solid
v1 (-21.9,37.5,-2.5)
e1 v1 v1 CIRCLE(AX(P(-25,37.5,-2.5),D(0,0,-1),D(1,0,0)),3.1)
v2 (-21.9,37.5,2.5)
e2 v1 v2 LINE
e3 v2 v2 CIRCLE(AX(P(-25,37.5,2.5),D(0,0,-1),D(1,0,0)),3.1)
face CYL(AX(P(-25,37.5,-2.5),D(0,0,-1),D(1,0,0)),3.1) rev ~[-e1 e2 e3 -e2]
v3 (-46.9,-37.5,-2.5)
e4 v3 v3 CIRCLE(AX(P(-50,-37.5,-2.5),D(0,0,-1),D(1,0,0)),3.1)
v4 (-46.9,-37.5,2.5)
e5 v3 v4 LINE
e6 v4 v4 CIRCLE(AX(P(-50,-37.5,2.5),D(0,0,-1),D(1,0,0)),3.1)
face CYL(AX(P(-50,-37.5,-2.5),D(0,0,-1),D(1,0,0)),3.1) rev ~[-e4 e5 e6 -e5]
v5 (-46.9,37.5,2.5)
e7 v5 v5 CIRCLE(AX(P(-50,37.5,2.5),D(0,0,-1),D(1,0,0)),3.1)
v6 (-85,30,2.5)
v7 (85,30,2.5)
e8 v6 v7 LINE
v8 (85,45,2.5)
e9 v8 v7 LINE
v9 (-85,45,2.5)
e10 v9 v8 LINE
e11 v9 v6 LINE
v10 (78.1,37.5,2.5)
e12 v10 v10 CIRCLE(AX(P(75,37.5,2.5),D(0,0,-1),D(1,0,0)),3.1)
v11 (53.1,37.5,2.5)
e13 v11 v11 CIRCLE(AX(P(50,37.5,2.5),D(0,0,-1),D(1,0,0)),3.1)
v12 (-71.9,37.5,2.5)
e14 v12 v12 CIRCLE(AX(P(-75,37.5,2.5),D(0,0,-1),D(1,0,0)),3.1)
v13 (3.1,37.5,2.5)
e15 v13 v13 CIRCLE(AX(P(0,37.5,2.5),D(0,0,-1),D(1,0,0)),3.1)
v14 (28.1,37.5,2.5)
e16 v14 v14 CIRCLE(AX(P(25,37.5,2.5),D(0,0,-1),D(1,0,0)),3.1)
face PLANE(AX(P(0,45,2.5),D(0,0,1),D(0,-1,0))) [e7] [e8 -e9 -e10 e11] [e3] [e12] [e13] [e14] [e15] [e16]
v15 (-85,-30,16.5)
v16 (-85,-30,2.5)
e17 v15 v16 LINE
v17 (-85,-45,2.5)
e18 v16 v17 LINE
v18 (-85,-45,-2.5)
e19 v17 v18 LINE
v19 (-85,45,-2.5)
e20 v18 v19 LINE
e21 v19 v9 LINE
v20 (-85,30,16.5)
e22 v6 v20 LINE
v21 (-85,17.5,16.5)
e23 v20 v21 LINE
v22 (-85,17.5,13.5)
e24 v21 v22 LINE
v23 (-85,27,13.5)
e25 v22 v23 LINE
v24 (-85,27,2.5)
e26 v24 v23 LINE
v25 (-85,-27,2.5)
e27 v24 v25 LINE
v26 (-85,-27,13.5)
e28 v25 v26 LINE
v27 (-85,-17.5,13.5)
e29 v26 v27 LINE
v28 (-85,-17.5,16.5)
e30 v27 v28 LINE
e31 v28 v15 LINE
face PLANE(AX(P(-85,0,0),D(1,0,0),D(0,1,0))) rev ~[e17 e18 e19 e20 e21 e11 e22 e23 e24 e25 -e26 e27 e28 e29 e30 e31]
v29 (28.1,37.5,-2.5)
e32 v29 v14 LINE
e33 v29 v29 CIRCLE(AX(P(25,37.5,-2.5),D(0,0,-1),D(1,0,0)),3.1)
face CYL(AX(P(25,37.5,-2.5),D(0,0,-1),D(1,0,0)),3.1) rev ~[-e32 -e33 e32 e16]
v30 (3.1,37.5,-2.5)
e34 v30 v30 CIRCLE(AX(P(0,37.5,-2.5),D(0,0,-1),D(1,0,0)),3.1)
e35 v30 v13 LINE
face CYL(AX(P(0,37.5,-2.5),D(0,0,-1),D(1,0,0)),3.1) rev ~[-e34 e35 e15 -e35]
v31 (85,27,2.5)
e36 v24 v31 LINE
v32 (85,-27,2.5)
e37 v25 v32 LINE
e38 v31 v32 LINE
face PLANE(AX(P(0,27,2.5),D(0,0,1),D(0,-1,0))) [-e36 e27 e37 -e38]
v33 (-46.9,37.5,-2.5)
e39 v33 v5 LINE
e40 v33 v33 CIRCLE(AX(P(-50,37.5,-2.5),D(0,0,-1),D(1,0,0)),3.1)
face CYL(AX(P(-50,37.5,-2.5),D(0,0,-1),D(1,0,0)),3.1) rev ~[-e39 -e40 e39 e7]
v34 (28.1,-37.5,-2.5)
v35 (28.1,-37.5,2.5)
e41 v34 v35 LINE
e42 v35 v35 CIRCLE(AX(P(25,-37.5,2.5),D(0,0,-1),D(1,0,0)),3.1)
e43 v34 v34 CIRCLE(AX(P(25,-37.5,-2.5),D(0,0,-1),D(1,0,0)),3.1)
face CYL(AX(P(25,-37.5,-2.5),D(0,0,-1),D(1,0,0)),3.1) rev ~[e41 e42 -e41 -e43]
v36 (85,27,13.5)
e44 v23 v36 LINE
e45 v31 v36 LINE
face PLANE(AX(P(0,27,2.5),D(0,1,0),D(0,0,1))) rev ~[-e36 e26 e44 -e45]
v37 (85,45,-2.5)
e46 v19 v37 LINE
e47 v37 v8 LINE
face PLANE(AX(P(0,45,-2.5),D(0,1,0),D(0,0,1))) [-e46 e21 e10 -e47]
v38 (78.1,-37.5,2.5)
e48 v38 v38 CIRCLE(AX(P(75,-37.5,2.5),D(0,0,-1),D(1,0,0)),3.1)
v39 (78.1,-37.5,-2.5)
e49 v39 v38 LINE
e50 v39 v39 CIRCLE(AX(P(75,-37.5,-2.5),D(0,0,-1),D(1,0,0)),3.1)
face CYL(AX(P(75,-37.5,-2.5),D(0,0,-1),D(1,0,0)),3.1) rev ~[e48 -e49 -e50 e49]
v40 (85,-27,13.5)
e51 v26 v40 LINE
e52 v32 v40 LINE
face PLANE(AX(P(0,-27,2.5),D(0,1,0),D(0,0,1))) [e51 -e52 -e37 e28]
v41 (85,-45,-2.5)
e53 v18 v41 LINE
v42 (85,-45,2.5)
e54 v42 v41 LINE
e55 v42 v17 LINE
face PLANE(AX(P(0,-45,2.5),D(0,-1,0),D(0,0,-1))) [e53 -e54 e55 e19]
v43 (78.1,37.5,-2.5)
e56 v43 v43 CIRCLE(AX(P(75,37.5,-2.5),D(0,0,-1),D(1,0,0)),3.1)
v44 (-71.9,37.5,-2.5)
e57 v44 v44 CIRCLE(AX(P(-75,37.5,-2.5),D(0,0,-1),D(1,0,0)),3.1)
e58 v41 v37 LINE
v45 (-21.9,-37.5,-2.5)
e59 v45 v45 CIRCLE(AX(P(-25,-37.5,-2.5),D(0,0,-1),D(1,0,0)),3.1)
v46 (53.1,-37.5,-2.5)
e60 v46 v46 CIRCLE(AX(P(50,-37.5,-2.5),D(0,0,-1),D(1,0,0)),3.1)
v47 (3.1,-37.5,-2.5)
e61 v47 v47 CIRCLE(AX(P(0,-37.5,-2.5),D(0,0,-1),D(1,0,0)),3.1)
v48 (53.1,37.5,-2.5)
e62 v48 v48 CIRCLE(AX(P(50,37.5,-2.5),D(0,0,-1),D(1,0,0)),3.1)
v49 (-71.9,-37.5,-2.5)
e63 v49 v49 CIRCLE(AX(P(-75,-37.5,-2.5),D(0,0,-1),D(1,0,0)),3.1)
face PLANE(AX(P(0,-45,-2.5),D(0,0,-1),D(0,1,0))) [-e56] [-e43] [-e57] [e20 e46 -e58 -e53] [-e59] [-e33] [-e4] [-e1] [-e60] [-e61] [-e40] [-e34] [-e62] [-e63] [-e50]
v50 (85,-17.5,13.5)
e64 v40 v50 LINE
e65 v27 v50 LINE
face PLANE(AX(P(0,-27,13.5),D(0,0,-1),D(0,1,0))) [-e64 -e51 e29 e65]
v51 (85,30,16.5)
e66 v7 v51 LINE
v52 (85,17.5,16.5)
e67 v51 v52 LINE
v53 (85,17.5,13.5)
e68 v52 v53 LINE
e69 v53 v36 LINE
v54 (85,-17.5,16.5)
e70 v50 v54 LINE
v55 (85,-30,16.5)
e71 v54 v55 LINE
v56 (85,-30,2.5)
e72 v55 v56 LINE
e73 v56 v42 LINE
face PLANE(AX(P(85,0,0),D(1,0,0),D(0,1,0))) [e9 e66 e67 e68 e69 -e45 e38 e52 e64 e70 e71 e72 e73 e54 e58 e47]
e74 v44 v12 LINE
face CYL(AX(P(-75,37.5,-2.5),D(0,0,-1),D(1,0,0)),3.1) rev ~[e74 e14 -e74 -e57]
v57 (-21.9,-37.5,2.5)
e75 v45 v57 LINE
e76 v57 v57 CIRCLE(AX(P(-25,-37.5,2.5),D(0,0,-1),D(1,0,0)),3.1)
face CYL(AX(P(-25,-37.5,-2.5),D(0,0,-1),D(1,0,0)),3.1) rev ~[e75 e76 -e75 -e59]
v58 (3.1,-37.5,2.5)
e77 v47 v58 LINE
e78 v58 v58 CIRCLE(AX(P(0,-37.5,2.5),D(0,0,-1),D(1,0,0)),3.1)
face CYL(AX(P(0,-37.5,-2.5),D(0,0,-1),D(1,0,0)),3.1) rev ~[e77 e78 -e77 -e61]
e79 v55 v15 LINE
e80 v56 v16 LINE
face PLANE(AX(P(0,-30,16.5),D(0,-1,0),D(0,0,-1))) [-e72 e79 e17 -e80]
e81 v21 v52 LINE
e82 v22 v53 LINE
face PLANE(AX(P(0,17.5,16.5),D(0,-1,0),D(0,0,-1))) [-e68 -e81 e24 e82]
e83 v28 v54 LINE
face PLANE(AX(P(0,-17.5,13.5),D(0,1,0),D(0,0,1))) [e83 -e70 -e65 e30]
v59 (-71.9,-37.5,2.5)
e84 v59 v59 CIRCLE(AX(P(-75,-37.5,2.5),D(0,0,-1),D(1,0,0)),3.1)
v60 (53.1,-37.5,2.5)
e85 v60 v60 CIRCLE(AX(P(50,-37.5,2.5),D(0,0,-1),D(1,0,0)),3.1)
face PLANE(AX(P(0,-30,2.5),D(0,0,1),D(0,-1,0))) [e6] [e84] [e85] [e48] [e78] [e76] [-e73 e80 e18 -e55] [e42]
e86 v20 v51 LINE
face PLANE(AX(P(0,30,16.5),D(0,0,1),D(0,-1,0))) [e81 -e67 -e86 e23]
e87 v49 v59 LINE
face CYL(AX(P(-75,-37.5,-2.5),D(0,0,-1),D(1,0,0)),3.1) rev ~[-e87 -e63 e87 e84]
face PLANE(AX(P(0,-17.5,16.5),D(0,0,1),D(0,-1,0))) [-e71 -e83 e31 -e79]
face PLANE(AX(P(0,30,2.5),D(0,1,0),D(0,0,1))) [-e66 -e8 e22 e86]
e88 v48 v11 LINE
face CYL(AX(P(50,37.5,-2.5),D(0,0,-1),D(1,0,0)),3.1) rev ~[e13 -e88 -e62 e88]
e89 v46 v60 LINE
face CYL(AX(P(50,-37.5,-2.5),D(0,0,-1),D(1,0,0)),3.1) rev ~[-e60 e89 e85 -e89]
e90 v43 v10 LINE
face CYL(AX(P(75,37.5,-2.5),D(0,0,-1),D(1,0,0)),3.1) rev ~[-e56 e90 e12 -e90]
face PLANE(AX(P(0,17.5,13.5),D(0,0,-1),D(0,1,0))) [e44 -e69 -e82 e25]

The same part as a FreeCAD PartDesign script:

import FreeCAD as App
import Part
import Sketcher
Q = App.Units.Quantity

doc = App.newDocument("Part")
body = doc.addObject("PartDesign::Body", "Body")

# Sketch on YZ plane
sketch1 = body.newObject("Sketcher::SketchObject", "Sketch")
sketch1.AttachmentSupport = (doc.getObject("YZ_Plane"), [""])
sketch1.MapMode = "FlatFace"
sketch1.addGeometry([
    Part.LineSegment(App.Vector(-45, 2.5, 0), App.Vector(-45, -2.5, 0)),  # 0
    Part.LineSegment(App.Vector(-45, -2.5, 0), App.Vector(45, -2.5, 0)),  # 1
    Part.LineSegment(App.Vector(45, -2.5, 0), App.Vector(45, 2.5, 0)),  # 2
    Part.LineSegment(App.Vector(45, 2.5, 0), App.Vector(30, 2.5, 0)),  # 3
    Part.LineSegment(App.Vector(30, 2.5, 0), App.Vector(30, 16.5, 0)),  # 4
    Part.LineSegment(App.Vector(30, 16.5, 0), App.Vector(17.5, 16.5, 0)),  # 5
    Part.LineSegment(App.Vector(17.5, 16.5, 0), App.Vector(17.5, 13.5, 0)),  # 6
    Part.LineSegment(App.Vector(17.5, 13.5, 0), App.Vector(27, 13.5, 0)),  # 7
    Part.LineSegment(App.Vector(27, 13.5, 0), App.Vector(27, 2.5, 0)),  # 8
    Part.LineSegment(App.Vector(27, 2.5, 0), App.Vector(-27, 2.5, 0)),  # 9
    Part.LineSegment(App.Vector(-27, 2.5, 0), App.Vector(-27, 13.5, 0)),  # 10
    Part.LineSegment(App.Vector(-27, 13.5, 0), App.Vector(-17.5, 13.5, 0)),  # 11
    Part.LineSegment(App.Vector(-17.5, 13.5, 0), App.Vector(-17.5, 16.5, 0)),  # 12
    Part.LineSegment(App.Vector(-17.5, 16.5, 0), App.Vector(-30, 16.5, 0)),  # 13
    Part.LineSegment(App.Vector(-30, 16.5, 0), App.Vector(-30, 2.5, 0)),  # 14
    Part.LineSegment(App.Vector(-30, 2.5, 0), App.Vector(-45, 2.5, 0)),  # 15
], False)
sketch1.addConstraint([
    Sketcher.Constraint("Coincident", 0, 2, 1, 1),
    Sketcher.Constraint("Coincident", 1, 2, 2, 1),
    Sketcher.Constraint("Coincident", 2, 2, 3, 1),
    Sketcher.Constraint("Coincident", 3, 2, 4, 1),
    Sketcher.Constraint("Coincident", 4, 2, 5, 1),
    Sketcher.Constraint("Coincident", 5, 2, 6, 1),
    Sketcher.Constraint("Coincident", 6, 2, 7, 1),
    Sketcher.Constraint("Coincident", 7, 2, 8, 1),
    Sketcher.Constraint("Coincident", 8, 2, 9, 1),
    Sketcher.Constraint("Coincident", 9, 2, 10, 1),
    Sketcher.Constraint("Coincident", 10, 2, 11, 1),
    Sketcher.Constraint("Coincident", 11, 2, 12, 1),
    Sketcher.Constraint("Coincident", 12, 2, 13, 1),
    Sketcher.Constraint("Coincident", 13, 2, 14, 1),
    Sketcher.Constraint("Coincident", 14, 2, 15, 1),
    Sketcher.Constraint("Coincident", 15, 2, 0, 1),
    Sketcher.Constraint("Vertical", 0),
    Sketcher.Constraint("Horizontal", 1),
    Sketcher.Constraint("Vertical", 2),
    Sketcher.Constraint("Horizontal", 3),
    Sketcher.Constraint("Vertical", 4),
    Sketcher.Constraint("Horizontal", 5),
    Sketcher.Constraint("Vertical", 6),
    Sketcher.Constraint("Horizontal", 7),
    Sketcher.Constraint("Vertical", 8),
    Sketcher.Constraint("Horizontal", 9),
    Sketcher.Constraint("Vertical", 10),
    Sketcher.Constraint("Horizontal", 11),
    Sketcher.Constraint("Vertical", 12),
    Sketcher.Constraint("Horizontal", 13),
    Sketcher.Constraint("Vertical", 14),
    Sketcher.Constraint("Horizontal", 15),
    Sketcher.Constraint("Symmetric", 0, 2, 2, 2, -1, 1),
    Sketcher.Constraint("Symmetric", 7, 2, 10, 2, -2),
    Sketcher.Constraint("Symmetric", 5, 2, 12, 2, -2),
    Sketcher.Constraint("Symmetric", 3, 2, 14, 2, -2),
    Sketcher.Constraint("Horizontal", 3, 2, 8, 2),
    Sketcher.Constraint("DistanceX", 1, 1, 1, 2, Q("90 mm")),
    Sketcher.Constraint("DistanceX", 3, 2, 3, 1, Q("15 mm")),
    Sketcher.Constraint("DistanceX", 9, 2, 9, 1, Q("54 mm")),
    Sketcher.Constraint("DistanceY", 0, 2, 0, 1, Q("5 mm")),
    Sketcher.Constraint("DistanceY", 4, 1, 4, 2, Q("14 mm")),
    Sketcher.Constraint("DistanceY", 6, 2, 6, 1, Q("3 mm")),
    Sketcher.Constraint("DistanceX", 5, 2, 5, 1, Q("12.5 mm")),
])
pad1 = body.newObject("PartDesign::Pad", "Pad")
pad1.Profile = sketch1
pad1.Length = 170
pad1.Midplane = True

# Sketch on XY plane
sketch2 = body.newObject("Sketcher::SketchObject", "Sketch001")
sketch2.AttachmentSupport = (doc.getObject("XY_Plane"), [""])
sketch2.MapMode = "FlatFace"
sketch2.AttachmentOffset = App.Placement(App.Vector(0, 0, -2.5), App.Rotation())
sketch2.addGeometry([
    Part.Circle(App.Vector(-75, -37.5, 0), App.Vector(0, 0, 1), 3.1),  # 0
    Part.Circle(App.Vector(-50, -37.5, 0), App.Vector(0, 0, 1), 3.1),  # 1
    Part.Circle(App.Vector(-25, -37.5, 0), App.Vector(0, 0, 1), 3.1),  # 2
    Part.Circle(App.Vector(0, -37.5, 0), App.Vector(0, 0, 1), 3.1),  # 3
    Part.Circle(App.Vector(25, -37.5, 0), App.Vector(0, 0, 1), 3.1),  # 4
    Part.Circle(App.Vector(75, -37.5, 0), App.Vector(0, 0, 1), 3.1),  # 5
    Part.Circle(App.Vector(50, -37.5, 0), App.Vector(0, 0, 1), 3.1),  # 6
    Part.Circle(App.Vector(50, 37.5, 0), App.Vector(0, 0, 1), 3.1),  # 7
    Part.Circle(App.Vector(75, 37.5, 0), App.Vector(0, 0, 1), 3.1),  # 8
    Part.Circle(App.Vector(25, 37.5, 0), App.Vector(0, 0, 1), 3.1),  # 9
    Part.Circle(App.Vector(0, 37.5, 0), App.Vector(0, 0, 1), 3.1),  # 10
    Part.Circle(App.Vector(-25, 37.5, 0), App.Vector(0, 0, 1), 3.1),  # 11
    Part.Circle(App.Vector(-50, 37.5, 0), App.Vector(0, 0, 1), 3.1),  # 12
    Part.Circle(App.Vector(-75, 37.5, 0), App.Vector(0, 0, 1), 3.1),  # 13
], False)
sketch2.addConstraint([
    Sketcher.Constraint("Equal", 0, 1),
    Sketcher.Constraint("Equal", 1, 2),
    Sketcher.Constraint("Equal", 2, 3),
    Sketcher.Constraint("Equal", 3, 4),
    Sketcher.Constraint("Equal", 4, 5),
    Sketcher.Constraint("Equal", 5, 6),
    Sketcher.Constraint("Equal", 6, 7),
    Sketcher.Constraint("Equal", 7, 8),
    Sketcher.Constraint("Equal", 8, 9),
    Sketcher.Constraint("Equal", 9, 10),
    Sketcher.Constraint("Equal", 10, 11),
    Sketcher.Constraint("Equal", 11, 12),
    Sketcher.Constraint("Equal", 12, 13),
    Sketcher.Constraint("Symmetric", 1, 3, 7, 3, -1, 1),
    Sketcher.Constraint("Symmetric", 0, 3, 8, 3, -1, 1),
    Sketcher.Constraint("Symmetric", 2, 3, 9, 3, -1, 1),
    Sketcher.Constraint("Symmetric", 3, 3, 10, 3, -1, 1),
    Sketcher.Constraint("Symmetric", 4, 3, 11, 3, -1, 1),
    Sketcher.Constraint("Symmetric", 6, 3, 12, 3, -1, 1),
    Sketcher.Constraint("Symmetric", 5, 3, 13, 3, -1, 1),
    Sketcher.Constraint("Symmetric", 2, 3, 4, 3, -2),
    Sketcher.Constraint("Symmetric", 0, 3, 5, 3, -2),
    Sketcher.Constraint("Symmetric", 1, 3, 6, 3, -2),
    Sketcher.Constraint("PointOnObject", 3, 3, -2),
    Sketcher.Constraint("Horizontal", 0, 3, 1, 3),
    Sketcher.Constraint("Horizontal", 1, 3, 2, 3),
    Sketcher.Constraint("Horizontal", 2, 3, 3, 3),
    Sketcher.Constraint("Diameter", 0, Q("6.2 mm")),
    Sketcher.Constraint("DistanceX", 0, 3, -1, 1, Q("75 mm")),
    Sketcher.Constraint("DistanceX", 1, 3, -1, 1, Q("50 mm")),
    Sketcher.Constraint("DistanceX", 2, 3, -1, 1, Q("25 mm")),
    Sketcher.Constraint("DistanceY", 6, 3, 7, 3, Q("75 mm")),
])
pocket1 = body.newObject("PartDesign::Pocket", "Pocket")
pocket1.Profile = sketch2
pocket1.Length = 6
pocket1.Reversed = True

doc.recompute()
